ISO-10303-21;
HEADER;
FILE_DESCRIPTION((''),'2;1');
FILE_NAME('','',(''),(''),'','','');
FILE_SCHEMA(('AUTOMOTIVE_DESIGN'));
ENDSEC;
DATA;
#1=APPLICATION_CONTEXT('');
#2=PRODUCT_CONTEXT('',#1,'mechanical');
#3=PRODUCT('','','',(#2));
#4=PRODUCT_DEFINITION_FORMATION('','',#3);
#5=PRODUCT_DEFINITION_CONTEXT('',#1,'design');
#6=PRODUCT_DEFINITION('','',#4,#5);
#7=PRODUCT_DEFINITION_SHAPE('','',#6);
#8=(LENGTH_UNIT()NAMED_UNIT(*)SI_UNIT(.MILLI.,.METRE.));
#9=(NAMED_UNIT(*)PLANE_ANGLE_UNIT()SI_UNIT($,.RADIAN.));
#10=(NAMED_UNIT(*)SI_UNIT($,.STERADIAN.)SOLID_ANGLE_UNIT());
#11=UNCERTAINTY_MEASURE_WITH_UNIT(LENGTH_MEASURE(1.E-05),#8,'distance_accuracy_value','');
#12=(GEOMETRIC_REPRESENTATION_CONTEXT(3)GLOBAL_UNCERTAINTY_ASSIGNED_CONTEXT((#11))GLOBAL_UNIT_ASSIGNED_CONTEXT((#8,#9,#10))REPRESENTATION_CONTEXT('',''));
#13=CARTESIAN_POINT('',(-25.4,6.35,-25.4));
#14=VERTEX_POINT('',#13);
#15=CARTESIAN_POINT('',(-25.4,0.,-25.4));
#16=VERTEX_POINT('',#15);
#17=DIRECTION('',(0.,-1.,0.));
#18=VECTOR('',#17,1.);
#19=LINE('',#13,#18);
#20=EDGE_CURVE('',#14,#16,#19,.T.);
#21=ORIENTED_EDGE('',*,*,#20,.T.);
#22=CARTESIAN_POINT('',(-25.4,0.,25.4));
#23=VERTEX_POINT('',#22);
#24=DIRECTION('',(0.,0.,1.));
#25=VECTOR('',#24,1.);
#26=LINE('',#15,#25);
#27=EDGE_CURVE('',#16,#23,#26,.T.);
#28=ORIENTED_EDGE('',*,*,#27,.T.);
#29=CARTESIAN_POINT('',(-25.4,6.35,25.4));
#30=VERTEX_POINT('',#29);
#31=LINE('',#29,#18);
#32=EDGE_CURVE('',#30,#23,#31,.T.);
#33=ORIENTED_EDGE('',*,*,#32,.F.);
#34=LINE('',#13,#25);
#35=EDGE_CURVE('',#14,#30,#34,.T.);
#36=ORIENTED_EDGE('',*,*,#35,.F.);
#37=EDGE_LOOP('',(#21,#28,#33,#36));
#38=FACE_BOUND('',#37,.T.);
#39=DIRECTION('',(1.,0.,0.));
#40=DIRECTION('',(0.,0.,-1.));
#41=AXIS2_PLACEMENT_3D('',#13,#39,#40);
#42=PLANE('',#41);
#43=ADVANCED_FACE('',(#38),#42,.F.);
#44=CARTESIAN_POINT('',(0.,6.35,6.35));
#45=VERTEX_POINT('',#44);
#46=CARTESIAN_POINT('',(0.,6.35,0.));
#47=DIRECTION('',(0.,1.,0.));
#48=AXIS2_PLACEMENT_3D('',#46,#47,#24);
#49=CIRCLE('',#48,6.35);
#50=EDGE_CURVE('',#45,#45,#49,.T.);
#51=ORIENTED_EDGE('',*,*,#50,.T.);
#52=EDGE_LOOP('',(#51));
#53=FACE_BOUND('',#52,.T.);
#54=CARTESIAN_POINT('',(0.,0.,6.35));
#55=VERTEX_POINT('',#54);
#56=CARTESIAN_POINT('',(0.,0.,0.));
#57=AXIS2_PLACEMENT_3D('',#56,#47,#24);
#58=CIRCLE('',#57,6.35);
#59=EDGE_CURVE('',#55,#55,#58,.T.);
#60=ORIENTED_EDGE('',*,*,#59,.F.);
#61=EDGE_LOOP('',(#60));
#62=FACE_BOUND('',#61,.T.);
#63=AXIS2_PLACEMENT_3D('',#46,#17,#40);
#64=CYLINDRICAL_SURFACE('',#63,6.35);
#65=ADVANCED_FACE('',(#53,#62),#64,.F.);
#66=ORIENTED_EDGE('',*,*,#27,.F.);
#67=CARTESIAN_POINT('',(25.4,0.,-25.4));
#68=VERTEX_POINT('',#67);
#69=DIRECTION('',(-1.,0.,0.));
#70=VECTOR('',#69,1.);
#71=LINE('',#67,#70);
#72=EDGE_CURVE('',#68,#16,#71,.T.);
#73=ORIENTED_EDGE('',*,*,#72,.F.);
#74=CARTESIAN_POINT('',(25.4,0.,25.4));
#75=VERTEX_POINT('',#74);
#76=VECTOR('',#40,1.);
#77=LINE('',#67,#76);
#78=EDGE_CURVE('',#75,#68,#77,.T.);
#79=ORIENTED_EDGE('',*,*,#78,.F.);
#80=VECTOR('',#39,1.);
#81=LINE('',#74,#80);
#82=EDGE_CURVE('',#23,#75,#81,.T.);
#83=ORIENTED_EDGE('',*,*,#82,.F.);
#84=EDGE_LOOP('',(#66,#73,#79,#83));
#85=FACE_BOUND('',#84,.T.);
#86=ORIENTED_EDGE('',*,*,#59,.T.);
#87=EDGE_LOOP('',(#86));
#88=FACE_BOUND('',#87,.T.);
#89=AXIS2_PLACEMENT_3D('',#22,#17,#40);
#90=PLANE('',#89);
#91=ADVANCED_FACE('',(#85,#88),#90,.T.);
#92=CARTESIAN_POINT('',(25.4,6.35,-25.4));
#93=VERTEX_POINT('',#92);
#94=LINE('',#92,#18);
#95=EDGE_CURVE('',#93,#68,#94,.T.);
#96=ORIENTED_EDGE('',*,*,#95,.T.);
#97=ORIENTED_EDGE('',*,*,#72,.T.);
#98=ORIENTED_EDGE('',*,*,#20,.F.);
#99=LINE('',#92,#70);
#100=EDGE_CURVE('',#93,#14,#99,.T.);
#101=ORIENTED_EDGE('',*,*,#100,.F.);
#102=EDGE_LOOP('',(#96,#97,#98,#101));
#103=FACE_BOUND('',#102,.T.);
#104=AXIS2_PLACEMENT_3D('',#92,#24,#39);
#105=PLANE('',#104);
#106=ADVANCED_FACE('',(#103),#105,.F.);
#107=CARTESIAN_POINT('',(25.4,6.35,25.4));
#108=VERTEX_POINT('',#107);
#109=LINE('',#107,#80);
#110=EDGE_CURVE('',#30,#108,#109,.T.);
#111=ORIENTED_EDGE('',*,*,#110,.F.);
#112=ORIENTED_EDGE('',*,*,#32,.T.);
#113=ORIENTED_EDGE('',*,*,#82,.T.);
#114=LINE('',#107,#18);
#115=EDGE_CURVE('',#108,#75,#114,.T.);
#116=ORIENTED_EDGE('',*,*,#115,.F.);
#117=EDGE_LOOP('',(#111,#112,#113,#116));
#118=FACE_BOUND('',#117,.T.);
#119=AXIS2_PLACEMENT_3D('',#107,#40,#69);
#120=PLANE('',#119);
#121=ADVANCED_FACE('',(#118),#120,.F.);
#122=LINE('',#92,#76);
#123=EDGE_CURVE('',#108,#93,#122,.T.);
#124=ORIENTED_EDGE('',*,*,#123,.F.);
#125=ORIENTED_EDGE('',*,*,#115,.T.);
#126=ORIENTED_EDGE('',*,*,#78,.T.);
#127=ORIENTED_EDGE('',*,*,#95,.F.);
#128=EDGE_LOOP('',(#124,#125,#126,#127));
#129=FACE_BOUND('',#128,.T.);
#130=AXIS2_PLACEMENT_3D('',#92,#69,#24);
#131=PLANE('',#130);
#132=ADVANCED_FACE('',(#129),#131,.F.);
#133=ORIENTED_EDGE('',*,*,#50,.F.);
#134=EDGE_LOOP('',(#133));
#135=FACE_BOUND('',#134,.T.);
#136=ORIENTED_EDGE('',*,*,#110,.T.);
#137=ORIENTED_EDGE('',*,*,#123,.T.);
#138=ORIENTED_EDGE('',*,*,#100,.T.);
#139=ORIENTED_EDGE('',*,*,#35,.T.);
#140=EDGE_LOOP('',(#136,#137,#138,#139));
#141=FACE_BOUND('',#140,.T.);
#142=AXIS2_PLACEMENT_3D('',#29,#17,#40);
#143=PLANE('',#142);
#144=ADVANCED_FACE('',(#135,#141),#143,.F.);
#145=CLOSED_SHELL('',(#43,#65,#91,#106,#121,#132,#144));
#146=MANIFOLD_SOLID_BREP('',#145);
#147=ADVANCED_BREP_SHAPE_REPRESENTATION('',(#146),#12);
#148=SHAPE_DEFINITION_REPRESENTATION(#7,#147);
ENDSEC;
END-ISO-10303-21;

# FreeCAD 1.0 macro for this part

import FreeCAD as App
import Part
import Sketcher
Q = App.Units.Quantity


def add_polygon(sketch, points):
    """Adds a closed chain of lines whose ends are joined by coincident constraints."""
    first, n = sketch.GeometryCount, len(points)
    for a, b in zip(points, points[1:] + points[:1]):
        sketch.addGeometry(Part.LineSegment(App.Vector(*a, 0), App.Vector(*b, 0)), False)
    for i in range(n):
        sketch.addConstraint(Sketcher.Constraint("Coincident", first + i, 2, first + (i + 1) % n, 1))

doc = App.newDocument("Part")
body = doc.addObject("PartDesign::Body", "Body")

# Sketch on XZ plane
sketch1 = body.newObject("Sketcher::SketchObject", "Sketch")
sketch1.AttachmentSupport = (doc.getObject("XZ_Plane"), [""])
sketch1.MapMode = "FlatFace"
add_polygon(sketch1, [(-25.4, -25.4), (-25.4, 25.4), (25.4, 25.4), (25.4, -25.4)])  # lines 0-3
sketch1.addGeometry(Part.Circle(App.Vector(0, 0, 0), App.Vector(0, 0, 1), 6.35), False)  # 4
sketch1.addConstraint(Sketcher.Constraint("Vertical", 0))
sketch1.addConstraint(Sketcher.Constraint("Horizontal", 1))
sketch1.addConstraint(Sketcher.Constraint("Vertical", 2))
sketch1.addConstraint(Sketcher.Constraint("Horizontal", 3))
sketch1.addConstraint(Sketcher.Constraint("Coincident", 4, 3, -1, 1))
sketch1.addConstraint(Sketcher.Constraint("Symmetric", 0, 2, 2, 2, -1, 1))
sketch1.addConstraint(Sketcher.Constraint("Equal", 3, 0))
sketch1.addConstraint(Sketcher.Constraint("Diameter", 4, Q("0.5 in")))
sketch1.addConstraint(Sketcher.Constraint("DistanceX", 1, 1, 1, 2, Q("2 in")))
pad1 = body.newObject("PartDesign::Pad", "Pad")
pad1.Profile = sketch1
pad1.Length = Q("0.25 in")
pad1.Reversed = True

doc.recompute()
